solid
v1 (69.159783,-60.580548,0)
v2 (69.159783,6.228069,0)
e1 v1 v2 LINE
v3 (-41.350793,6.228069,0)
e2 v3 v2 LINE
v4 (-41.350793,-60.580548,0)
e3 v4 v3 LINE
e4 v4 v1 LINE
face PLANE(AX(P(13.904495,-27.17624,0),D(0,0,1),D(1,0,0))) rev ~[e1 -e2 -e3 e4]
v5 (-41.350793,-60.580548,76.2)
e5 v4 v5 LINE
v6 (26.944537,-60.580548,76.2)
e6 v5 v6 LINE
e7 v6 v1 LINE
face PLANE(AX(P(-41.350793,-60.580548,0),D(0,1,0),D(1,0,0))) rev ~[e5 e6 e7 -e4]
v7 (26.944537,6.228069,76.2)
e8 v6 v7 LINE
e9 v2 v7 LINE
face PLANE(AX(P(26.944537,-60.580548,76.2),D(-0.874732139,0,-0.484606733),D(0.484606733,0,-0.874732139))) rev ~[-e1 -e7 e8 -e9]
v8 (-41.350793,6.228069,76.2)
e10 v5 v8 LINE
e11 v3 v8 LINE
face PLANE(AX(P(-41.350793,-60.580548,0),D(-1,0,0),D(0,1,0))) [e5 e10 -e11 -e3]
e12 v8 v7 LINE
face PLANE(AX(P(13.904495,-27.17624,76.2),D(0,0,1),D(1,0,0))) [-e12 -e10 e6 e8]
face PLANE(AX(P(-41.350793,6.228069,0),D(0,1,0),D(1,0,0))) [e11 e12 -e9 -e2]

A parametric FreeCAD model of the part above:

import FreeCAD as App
import Part
import Sketcher
from FreeCAD import Vector
Q = App.Units.Quantity


def add_polygon(sketch, points):
    """Adds a closed chain of lines whose ends are joined by coincident constraints."""
    first, n = sketch.GeometryCount, len(points)
    for a, b in zip(points, points[1:] + points[:1]):
        sketch.addGeometry(Part.LineSegment(App.Vector(*a, 0), App.Vector(*b, 0)), False)
    for i in range(n):
        sketch.addConstraint(Sketcher.Constraint("Coincident", first + i, 2, first + (i + 1) % n, 1))

doc = App.newDocument("Part")
body = doc.addObject("PartDesign::Body", "Body")

# Sketch on XY plane
sketch1 = body.newObject("Sketcher::SketchObject", "Sketch")
sketch1.AttachmentSupport = (doc.getObject("XY_Plane"), [""])
sketch1.MapMode = "FlatFace"
add_polygon(sketch1, [(-41.350793, 6.228069), (-41.350793, -60.580548), (69.159783, -60.580548), (69.159783, 6.228069)])  # lines 0-3
sketch1.addConstraint(Sketcher.Constraint("Vertical", 0))
sketch1.addConstraint(Sketcher.Constraint("Horizontal", 1))
sketch1.addConstraint(Sketcher.Constraint("Vertical", 2))
sketch1.addConstraint(Sketcher.Constraint("Horizontal", 3))
sketch1.addConstraint(Sketcher.Constraint("DistanceX", 1, 1, 1, 2, Q("110.510577 mm")))
sketch1.addConstraint(Sketcher.Constraint("DistanceY", 0, 2, 0, 1, Q("66.808617 mm")))
sketch1.addConstraint(Sketcher.Constraint("DistanceY", -1, 1, 2, 2, Q("6.228069 mm")))
sketch1.addConstraint(Sketcher.Constraint("DistanceX", 0, 2, -1, 1, Q("41.350793 mm")))
pad1 = body.newObject("PartDesign::Pad", "Pad")
pad1.Profile = sketch1
pad1.Length = Q("3 in")

# Sketch on XZ plane
sketch2 = body.newObject("Sketcher::SketchObject", "Sketch001")
sketch2.AttachmentSupport = (doc.getObject("XZ_Plane"), [""])
sketch2.MapMode = "FlatFace"
sketch2.AttachmentOffset = App.Placement(Vector(0, 0, 60.580548), App.Rotation())
add_polygon(sketch2, [(26.944537, 76.2), (69.159783, 0), (69.159783, 76.2)])  # lines 0-2
sketch2.addConstraint(Sketcher.Constraint("Vertical", 1))
sketch2.addConstraint(Sketcher.Constraint("Horizontal", 2))
sketch2.addConstraint(Sketcher.Constraint("PointOnObject", 0, 2, -1))
sketch2.addConstraint(Sketcher.Constraint("DistanceY", 1, 1, 1, 2, Q("3 in")))
sketch2.addConstraint(Sketcher.Constraint("Distance", 0, Q("87.112382 mm")))
sketch2.addConstraint(Sketcher.Constraint("DistanceX", -1, 1, 0, 2, Q("69.159783 mm")))
pocket1 = body.newObject("PartDesign::Pocket", "Pocket")
pocket1.Profile = sketch2
pocket1.Length = Q("3.72 in")

doc.recompute()
